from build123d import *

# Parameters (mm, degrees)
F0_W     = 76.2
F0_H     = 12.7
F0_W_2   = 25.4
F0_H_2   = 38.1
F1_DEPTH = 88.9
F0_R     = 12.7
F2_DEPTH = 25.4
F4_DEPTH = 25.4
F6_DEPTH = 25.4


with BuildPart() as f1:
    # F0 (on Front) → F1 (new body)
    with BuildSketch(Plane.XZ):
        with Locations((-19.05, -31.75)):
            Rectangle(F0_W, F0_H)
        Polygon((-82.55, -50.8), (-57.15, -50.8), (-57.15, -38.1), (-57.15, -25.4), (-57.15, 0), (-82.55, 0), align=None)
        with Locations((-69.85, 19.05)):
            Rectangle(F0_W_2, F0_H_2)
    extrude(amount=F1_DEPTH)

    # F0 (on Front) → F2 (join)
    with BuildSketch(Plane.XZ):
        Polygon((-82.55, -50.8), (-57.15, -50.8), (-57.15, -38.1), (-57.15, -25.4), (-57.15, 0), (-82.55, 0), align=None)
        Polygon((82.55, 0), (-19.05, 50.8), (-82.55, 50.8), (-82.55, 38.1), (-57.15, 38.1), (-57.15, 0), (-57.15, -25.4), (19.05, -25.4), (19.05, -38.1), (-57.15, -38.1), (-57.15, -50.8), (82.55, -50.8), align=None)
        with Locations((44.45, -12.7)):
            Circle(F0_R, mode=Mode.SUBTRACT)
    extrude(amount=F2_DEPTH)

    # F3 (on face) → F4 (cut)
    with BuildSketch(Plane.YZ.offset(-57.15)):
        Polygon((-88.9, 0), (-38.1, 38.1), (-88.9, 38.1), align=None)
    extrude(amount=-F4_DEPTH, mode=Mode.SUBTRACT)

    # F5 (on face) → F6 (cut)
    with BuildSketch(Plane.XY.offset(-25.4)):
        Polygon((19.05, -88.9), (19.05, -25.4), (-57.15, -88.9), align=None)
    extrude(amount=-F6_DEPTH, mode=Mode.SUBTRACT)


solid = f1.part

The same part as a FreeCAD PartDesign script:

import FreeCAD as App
import Part
import Sketcher

V = App.Vector
Q = App.Units.Quantity

doc = App.newDocument("Part")
params = doc.addObject("Spreadsheet::Sheet", "Params")
for row, (alias, value) in enumerate([
    ("sketch1_width", "3 in"),
    ("sketch1_width2", "1 in"),
    ("sketch1_height", "0.5 in"),
    ("sketch1_height2", "2.5 in"),
    ("pad1_length", "3.5 in"),
    ("sketch2_diameter", "1 in"),
    ("sketch2_width", "1 in"),
    ("sketch2_width2", "3 in"),
    ("sketch2_height", "2 in"),
    ("sketch2_width3", "6.5 in"),
    ("pad2_length", "1 in"),
    ("sketch3_width", "2 in"),
    ("sketch3_height", "1.5 in"),
    ("pocket1_length", "1 in"),
    ("sketch4_width", "3 in"),
    ("sketch4_height", "2.5 in"),
    ("pocket2_length", "1 in"),
], start=1):
    params.set(f"A{row}", alias)
    params.set(f"B{row}", "=" + value)
    params.setAlias(f"B{row}", alias)

body = doc.addObject("PartDesign::Body", "Body")

# Sketch on XZ plane
sketch1 = body.newObject("Sketcher::SketchObject", "Sketch")
sketch1.AttachmentSupport = (doc.getObject("XZ_Plane"), [""])
sketch1.MapMode = "FlatFace"
sketch1.addGeometry([
    Part.LineSegment(V(-57.15, -38.1, 0), V(19.05, -38.1, 0)),  # 0
    Part.LineSegment(V(19.05, -38.1, 0), V(19.05, -25.4, 0)),  # 1
    Part.LineSegment(V(19.05, -25.4, 0), V(-57.15, -25.4, 0)),  # 2
    Part.LineSegment(V(-57.15, -25.4, 0), V(-57.15, 38.1, 0)),  # 3
    Part.LineSegment(V(-57.15, 38.1, 0), V(-82.55, 38.1, 0)),  # 4
    Part.LineSegment(V(-82.55, 38.1, 0), V(-82.55, -50.8, 0)),  # 5
    Part.LineSegment(V(-82.55, -50.8, 0), V(-57.15, -50.8, 0)),  # 6
    Part.LineSegment(V(-57.15, -50.8, 0), V(-57.15, -38.1, 0)),  # 7
], False)
sketch1.addConstraint([
    Sketcher.Constraint("Coincident", 0, 2, 1, 1),
    Sketcher.Constraint("Coincident", 1, 2, 2, 1),
    Sketcher.Constraint("Coincident", 2, 2, 3, 1),
    Sketcher.Constraint("Coincident", 3, 2, 4, 1),
    Sketcher.Constraint("Coincident", 4, 2, 5, 1),
    Sketcher.Constraint("Coincident", 5, 2, 6, 1),
    Sketcher.Constraint("Coincident", 6, 2, 7, 1),
    Sketcher.Constraint("Coincident", 7, 2, 0, 1),
    Sketcher.Constraint("Horizontal", 0),
    Sketcher.Constraint("Vertical", 1),
    Sketcher.Constraint("Horizontal", 2),
    Sketcher.Constraint("Vertical", 3),
    Sketcher.Constraint("Horizontal", 4),
    Sketcher.Constraint("Vertical", 5),
    Sketcher.Constraint("Horizontal", 6),
    Sketcher.Constraint("Vertical", 7),
    Sketcher.Constraint("Symmetric", 3, 2, 7, 2, -1),
    Sketcher.Constraint("Equal", 1, 7),
    Sketcher.Constraint("DistanceX", 0, 1, 0, 2, Q("3 in")),
    Sketcher.Constraint("DistanceX", 4, 2, 4, 1, Q("1 in")),
    Sketcher.Constraint("DistanceY", 1, 1, 1, 2, Q("0.5 in")),
    Sketcher.Constraint("DistanceY", 3, 1, 3, 2, Q("2.5 in")),
    Sketcher.Constraint("DistanceX", -1, 1, 0, 2, Q("0.75 in")),
])
sketch1.setExpression("Constraints[18]", "Params.sketch1_width")
sketch1.setExpression("Constraints[19]", "Params.sketch1_width2")
sketch1.setExpression("Constraints[20]", "Params.sketch1_height")
sketch1.setExpression("Constraints[21]", "Params.sketch1_height2")
pad1 = body.newObject("PartDesign::Pad", "Pad")
pad1.Profile = sketch1
pad1.setExpression("Length", "Params.pad1_length")

# Sketch on XZ plane
sketch2 = body.newObject("Sketcher::SketchObject", "Sketch001")
sketch2.AttachmentSupport = (doc.getObject("XZ_Plane"), [""])
sketch2.MapMode = "FlatFace"
sketch2.addGeometry([
    Part.LineSegment(V(-82.55, -50.8, 0), V(82.55, -50.8, 0)),  # 0
    Part.LineSegment(V(82.55, -50.8, 0), V(82.55, 0, 0)),  # 1
    Part.LineSegment(V(82.55, 0, 0), V(-19.05, 50.8, 0)),  # 2
    Part.LineSegment(V(-19.05, 50.8, 0), V(-82.55, 50.8, 0)),  # 3
    Part.LineSegment(V(-82.55, 50.8, 0), V(-82.55, 38.1, 0)),  # 4
    Part.LineSegment(V(-82.55, 38.1, 0), V(-57.15, 38.1, 0)),  # 5
    Part.LineSegment(V(-57.15, 38.1, 0), V(-57.15, 0, 0)),  # 6
    Part.LineSegment(V(-57.15, 0, 0), V(-82.55, 0, 0)),  # 7
    Part.LineSegment(V(-82.55, 0, 0), V(-82.55, -50.8, 0)),  # 8
    Part.LineSegment(V(-57.15, -38.1, 0), V(-57.15, -25.4, 0)),  # 9
    Part.LineSegment(V(-57.15, -25.4, 0), V(19.05, -25.4, 0)),  # 10
    Part.LineSegment(V(19.05, -25.4, 0), V(19.05, -38.1, 0)),  # 11
    Part.LineSegment(V(19.05, -38.1, 0), V(-57.15, -38.1, 0)),  # 12
    Part.Circle(V(44.45, -12.7, 0), V(0, 0, 1), 12.7),  # 13
], False)
sketch2.addConstraint([
    Sketcher.Constraint("Coincident", 0, 2, 1, 1),
    Sketcher.Constraint("Coincident", 1, 2, 2, 1),
    Sketcher.Constraint("Coincident", 2, 2, 3, 1),
    Sketcher.Constraint("Coincident", 3, 2, 4, 1),
    Sketcher.Constraint("Coincident", 4, 2, 5, 1),
    Sketcher.Constraint("Coincident", 5, 2, 6, 1),
    Sketcher.Constraint("Coincident", 6, 2, 7, 1),
    Sketcher.Constraint("Coincident", 7, 2, 8, 1),
    Sketcher.Constraint("Coincident", 8, 2, 0, 1),
    Sketcher.Constraint("Coincident", 9, 2, 10, 1),
    Sketcher.Constraint("Coincident", 10, 2, 11, 1),
    Sketcher.Constraint("Coincident", 11, 2, 12, 1),
    Sketcher.Constraint("Coincident", 12, 2, 9, 1),
    Sketcher.Constraint("Horizontal", 0),
    Sketcher.Constraint("Vertical", 1),
    Sketcher.Constraint("Horizontal", 3),
    Sketcher.Constraint("Vertical", 4),
    Sketcher.Constraint("Horizontal", 5),
    Sketcher.Constraint("Vertical", 6),
    Sketcher.Constraint("Horizontal", 7),
    Sketcher.Constraint("Vertical", 8),
    Sketcher.Constraint("Vertical", 9),
    Sketcher.Constraint("Horizontal", 10),
    Sketcher.Constraint("Vertical", 11),
    Sketcher.Constraint("Horizontal", 12),
    Sketcher.Constraint("Symmetric", 0, 2, 3, 2, -1, 1),
    Sketcher.Constraint("Symmetric", 1, 2, 7, 2, -1, 1),
    Sketcher.Constraint("Symmetric", 5, 2, 12, 2, -1),
    Sketcher.Constraint("PointOnObject", 1, 2, -1),
    Sketcher.Constraint("Equal", 4, 9),
    Sketcher.Constraint("Diameter", 13, Q("1 in")),
    Sketcher.Constraint("DistanceX", 5, 1, 5, 2, Q("1 in")),
    Sketcher.Constraint("DistanceX", 10, 1, 10, 2, Q("3 in")),
    Sketcher.Constraint("DistanceY", 1, 1, 1, 2, Q("2 in")),
    Sketcher.Constraint("DistanceX", 0, 1, 0, 2, Q("6.5 in")),
    Sketcher.Constraint("DistanceX", 3, 2, 3, 1, Q("2.5 in")),
    Sketcher.Constraint("DistanceY", 4, 2, 4, 1, Q("0.5 in")),
    Sketcher.Constraint("DistanceX", 3, 2, 13, 3, Q("5 in")),
    Sketcher.Constraint("DistanceY", 13, 3, 4, 2, Q("2 in")),
])
sketch2.setExpression("Constraints[30]", "Params.sketch2_diameter")
sketch2.setExpression("Constraints[31]", "Params.sketch2_width")
sketch2.setExpression("Constraints[32]", "Params.sketch2_width2")
sketch2.setExpression("Constraints[33]", "Params.sketch2_height")
sketch2.setExpression("Constraints[34]", "Params.sketch2_width3")
pad2 = body.newObject("PartDesign::Pad", "Pad001")
pad2.Profile = sketch2
pad2.setExpression("Length", "Params.pad2_length")

# Sketch on YZ plane
sketch3 = body.newObject("Sketcher::SketchObject", "Sketch002")
sketch3.AttachmentSupport = (doc.getObject("YZ_Plane"), [""])
sketch3.MapMode = "FlatFace"
sketch3.AttachmentOffset = App.Placement(V(0, 0, -2.25 * 25.4), App.Rotation())
sketch3.addGeometry([
    Part.LineSegment(V(-88.9, 0, 0), V(-38.1, 38.1, 0)),
    Part.LineSegment(V(-38.1, 38.1, 0), V(-88.9, 38.1, 0)),
    Part.LineSegment(V(-88.9, 38.1, 0), V(-88.9, 0, 0)),
], False)
sketch3.addConstraint([
    Sketcher.Constraint("Coincident", 0, 2, 1, 1),
    Sketcher.Constraint("Coincident", 1, 2, 2, 1),
    Sketcher.Constraint("Coincident", 2, 2, 0, 1),
    Sketcher.Constraint("Horizontal", 1),
    Sketcher.Constraint("Vertical", 2),
    Sketcher.Constraint("PointOnObject", 2, 2, -1),
    Sketcher.Constraint("DistanceX", 1, 2, 1, 1, Q("2 in")),
    Sketcher.Constraint("DistanceY", 2, 2, 2, 1, Q("1.5 in")),
    Sketcher.Constraint("DistanceX", 0, 2, -1, 1, Q("1.5 in")),
])
sketch3.setExpression("Constraints[6]", "Params.sketch3_width")
sketch3.setExpression("Constraints[7]", "Params.sketch3_height")
pocket1 = body.newObject("PartDesign::Pocket", "Pocket")
pocket1.Profile = sketch3
pocket1.setExpression("Length", "Params.pocket1_length")

# Sketch on XY plane
sketch4 = body.newObject("Sketcher::SketchObject", "Sketch003")
sketch4.AttachmentSupport = (doc.getObject("XY_Plane"), [""])
sketch4.MapMode = "FlatFace"
sketch4.AttachmentOffset = App.Placement(V(0, 0, -1 * 25.4), App.Rotation())
sketch4.addGeometry([
    Part.LineSegment(V(19.05, -88.9, 0), V(19.05, -25.4, 0)),
    Part.LineSegment(V(19.05, -25.4, 0), V(-57.15, -88.9, 0)),
    Part.LineSegment(V(-57.15, -88.9, 0), V(19.05, -88.9, 0)),
], False)
sketch4.addConstraint([
    Sketcher.Constraint("Coincident", 0, 2, 1, 1),
    Sketcher.Constraint("Coincident", 1, 2, 2, 1),
    Sketcher.Constraint("Coincident", 2, 2, 0, 1),
    Sketcher.Constraint("Vertical", 0),
    Sketcher.Constraint("Horizontal", 2),
    Sketcher.Constraint("DistanceX", 2, 1, 2, 2, Q("3 in")),
    Sketcher.Constraint("DistanceY", 0, 1, 0, 2, Q("2.5 in")),
    Sketcher.Constraint("DistanceY", 0, 2, -1, 1, Q("1 in")),
    Sketcher.Constraint("DistanceX", -1, 1, 0, 2, Q("0.75 in")),
])
sketch4.setExpression("Constraints[5]", "Params.sketch4_width")
sketch4.setExpression("Constraints[6]", "Params.sketch4_height")
pocket2 = body.newObject("PartDesign::Pocket", "Pocket001")
pocket2.Profile = sketch4
pocket2.setExpression("Length", "Params.pocket2_length")

doc.recompute()
